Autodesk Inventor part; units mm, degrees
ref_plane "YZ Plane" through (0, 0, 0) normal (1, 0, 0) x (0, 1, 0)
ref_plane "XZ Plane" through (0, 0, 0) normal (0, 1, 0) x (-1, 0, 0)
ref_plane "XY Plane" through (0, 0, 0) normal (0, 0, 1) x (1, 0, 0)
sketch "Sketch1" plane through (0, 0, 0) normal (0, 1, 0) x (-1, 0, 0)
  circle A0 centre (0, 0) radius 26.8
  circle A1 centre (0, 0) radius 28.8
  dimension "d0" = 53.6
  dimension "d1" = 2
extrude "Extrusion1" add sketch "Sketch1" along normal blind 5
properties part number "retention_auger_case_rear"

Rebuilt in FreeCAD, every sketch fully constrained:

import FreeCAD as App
import Part
import Sketcher

V = App.Vector

doc = App.newDocument("Part")
params = doc.addObject("Spreadsheet::Sheet", "Params")
for row, (alias, value) in enumerate([
    ("sketch1_diameter", "53.6 mm"),
    ("sketch1_diameter2", "57.6 mm"),
    ("pad1_length", "5 mm"),
], start=1):
    params.set(f"A{row}", alias)
    params.set(f"B{row}", "=" + value)
    params.setAlias(f"B{row}", alias)

body = doc.addObject("PartDesign::Body", "Body")

# Sketch on XZ plane
sketch1 = body.newObject("Sketcher::SketchObject", "Sketch")
sketch1.AttachmentSupport = (doc.getObject("XZ_Plane"), [""])
sketch1.MapMode = "FlatFace"
sketch1.addGeometry([
    Part.Circle(V(0, 0, 0), V(0, 0, 1), 29),
    Part.Circle(V(0, 0, 0), V(0, 0, 1), 27),
], False)
sketch1.addConstraint([
    Sketcher.Constraint("Coincident", 0, 3, -1, 1),
    Sketcher.Constraint("Coincident", 1, 3, -1, 1),
    Sketcher.Constraint("Diameter", 1, 53.6),
    Sketcher.Constraint("Diameter", 0, 57.6),
])
sketch1.setExpression("Constraints[2]", "Params.sketch1_diameter")
sketch1.setExpression("Constraints[3]", "Params.sketch1_diameter2")
pad1 = body.newObject("PartDesign::Pad", "Pad")
pad1.Profile = sketch1
pad1.setExpression("Length", "Params.pad1_length")
pad1.Reversed = True

doc.recompute()
